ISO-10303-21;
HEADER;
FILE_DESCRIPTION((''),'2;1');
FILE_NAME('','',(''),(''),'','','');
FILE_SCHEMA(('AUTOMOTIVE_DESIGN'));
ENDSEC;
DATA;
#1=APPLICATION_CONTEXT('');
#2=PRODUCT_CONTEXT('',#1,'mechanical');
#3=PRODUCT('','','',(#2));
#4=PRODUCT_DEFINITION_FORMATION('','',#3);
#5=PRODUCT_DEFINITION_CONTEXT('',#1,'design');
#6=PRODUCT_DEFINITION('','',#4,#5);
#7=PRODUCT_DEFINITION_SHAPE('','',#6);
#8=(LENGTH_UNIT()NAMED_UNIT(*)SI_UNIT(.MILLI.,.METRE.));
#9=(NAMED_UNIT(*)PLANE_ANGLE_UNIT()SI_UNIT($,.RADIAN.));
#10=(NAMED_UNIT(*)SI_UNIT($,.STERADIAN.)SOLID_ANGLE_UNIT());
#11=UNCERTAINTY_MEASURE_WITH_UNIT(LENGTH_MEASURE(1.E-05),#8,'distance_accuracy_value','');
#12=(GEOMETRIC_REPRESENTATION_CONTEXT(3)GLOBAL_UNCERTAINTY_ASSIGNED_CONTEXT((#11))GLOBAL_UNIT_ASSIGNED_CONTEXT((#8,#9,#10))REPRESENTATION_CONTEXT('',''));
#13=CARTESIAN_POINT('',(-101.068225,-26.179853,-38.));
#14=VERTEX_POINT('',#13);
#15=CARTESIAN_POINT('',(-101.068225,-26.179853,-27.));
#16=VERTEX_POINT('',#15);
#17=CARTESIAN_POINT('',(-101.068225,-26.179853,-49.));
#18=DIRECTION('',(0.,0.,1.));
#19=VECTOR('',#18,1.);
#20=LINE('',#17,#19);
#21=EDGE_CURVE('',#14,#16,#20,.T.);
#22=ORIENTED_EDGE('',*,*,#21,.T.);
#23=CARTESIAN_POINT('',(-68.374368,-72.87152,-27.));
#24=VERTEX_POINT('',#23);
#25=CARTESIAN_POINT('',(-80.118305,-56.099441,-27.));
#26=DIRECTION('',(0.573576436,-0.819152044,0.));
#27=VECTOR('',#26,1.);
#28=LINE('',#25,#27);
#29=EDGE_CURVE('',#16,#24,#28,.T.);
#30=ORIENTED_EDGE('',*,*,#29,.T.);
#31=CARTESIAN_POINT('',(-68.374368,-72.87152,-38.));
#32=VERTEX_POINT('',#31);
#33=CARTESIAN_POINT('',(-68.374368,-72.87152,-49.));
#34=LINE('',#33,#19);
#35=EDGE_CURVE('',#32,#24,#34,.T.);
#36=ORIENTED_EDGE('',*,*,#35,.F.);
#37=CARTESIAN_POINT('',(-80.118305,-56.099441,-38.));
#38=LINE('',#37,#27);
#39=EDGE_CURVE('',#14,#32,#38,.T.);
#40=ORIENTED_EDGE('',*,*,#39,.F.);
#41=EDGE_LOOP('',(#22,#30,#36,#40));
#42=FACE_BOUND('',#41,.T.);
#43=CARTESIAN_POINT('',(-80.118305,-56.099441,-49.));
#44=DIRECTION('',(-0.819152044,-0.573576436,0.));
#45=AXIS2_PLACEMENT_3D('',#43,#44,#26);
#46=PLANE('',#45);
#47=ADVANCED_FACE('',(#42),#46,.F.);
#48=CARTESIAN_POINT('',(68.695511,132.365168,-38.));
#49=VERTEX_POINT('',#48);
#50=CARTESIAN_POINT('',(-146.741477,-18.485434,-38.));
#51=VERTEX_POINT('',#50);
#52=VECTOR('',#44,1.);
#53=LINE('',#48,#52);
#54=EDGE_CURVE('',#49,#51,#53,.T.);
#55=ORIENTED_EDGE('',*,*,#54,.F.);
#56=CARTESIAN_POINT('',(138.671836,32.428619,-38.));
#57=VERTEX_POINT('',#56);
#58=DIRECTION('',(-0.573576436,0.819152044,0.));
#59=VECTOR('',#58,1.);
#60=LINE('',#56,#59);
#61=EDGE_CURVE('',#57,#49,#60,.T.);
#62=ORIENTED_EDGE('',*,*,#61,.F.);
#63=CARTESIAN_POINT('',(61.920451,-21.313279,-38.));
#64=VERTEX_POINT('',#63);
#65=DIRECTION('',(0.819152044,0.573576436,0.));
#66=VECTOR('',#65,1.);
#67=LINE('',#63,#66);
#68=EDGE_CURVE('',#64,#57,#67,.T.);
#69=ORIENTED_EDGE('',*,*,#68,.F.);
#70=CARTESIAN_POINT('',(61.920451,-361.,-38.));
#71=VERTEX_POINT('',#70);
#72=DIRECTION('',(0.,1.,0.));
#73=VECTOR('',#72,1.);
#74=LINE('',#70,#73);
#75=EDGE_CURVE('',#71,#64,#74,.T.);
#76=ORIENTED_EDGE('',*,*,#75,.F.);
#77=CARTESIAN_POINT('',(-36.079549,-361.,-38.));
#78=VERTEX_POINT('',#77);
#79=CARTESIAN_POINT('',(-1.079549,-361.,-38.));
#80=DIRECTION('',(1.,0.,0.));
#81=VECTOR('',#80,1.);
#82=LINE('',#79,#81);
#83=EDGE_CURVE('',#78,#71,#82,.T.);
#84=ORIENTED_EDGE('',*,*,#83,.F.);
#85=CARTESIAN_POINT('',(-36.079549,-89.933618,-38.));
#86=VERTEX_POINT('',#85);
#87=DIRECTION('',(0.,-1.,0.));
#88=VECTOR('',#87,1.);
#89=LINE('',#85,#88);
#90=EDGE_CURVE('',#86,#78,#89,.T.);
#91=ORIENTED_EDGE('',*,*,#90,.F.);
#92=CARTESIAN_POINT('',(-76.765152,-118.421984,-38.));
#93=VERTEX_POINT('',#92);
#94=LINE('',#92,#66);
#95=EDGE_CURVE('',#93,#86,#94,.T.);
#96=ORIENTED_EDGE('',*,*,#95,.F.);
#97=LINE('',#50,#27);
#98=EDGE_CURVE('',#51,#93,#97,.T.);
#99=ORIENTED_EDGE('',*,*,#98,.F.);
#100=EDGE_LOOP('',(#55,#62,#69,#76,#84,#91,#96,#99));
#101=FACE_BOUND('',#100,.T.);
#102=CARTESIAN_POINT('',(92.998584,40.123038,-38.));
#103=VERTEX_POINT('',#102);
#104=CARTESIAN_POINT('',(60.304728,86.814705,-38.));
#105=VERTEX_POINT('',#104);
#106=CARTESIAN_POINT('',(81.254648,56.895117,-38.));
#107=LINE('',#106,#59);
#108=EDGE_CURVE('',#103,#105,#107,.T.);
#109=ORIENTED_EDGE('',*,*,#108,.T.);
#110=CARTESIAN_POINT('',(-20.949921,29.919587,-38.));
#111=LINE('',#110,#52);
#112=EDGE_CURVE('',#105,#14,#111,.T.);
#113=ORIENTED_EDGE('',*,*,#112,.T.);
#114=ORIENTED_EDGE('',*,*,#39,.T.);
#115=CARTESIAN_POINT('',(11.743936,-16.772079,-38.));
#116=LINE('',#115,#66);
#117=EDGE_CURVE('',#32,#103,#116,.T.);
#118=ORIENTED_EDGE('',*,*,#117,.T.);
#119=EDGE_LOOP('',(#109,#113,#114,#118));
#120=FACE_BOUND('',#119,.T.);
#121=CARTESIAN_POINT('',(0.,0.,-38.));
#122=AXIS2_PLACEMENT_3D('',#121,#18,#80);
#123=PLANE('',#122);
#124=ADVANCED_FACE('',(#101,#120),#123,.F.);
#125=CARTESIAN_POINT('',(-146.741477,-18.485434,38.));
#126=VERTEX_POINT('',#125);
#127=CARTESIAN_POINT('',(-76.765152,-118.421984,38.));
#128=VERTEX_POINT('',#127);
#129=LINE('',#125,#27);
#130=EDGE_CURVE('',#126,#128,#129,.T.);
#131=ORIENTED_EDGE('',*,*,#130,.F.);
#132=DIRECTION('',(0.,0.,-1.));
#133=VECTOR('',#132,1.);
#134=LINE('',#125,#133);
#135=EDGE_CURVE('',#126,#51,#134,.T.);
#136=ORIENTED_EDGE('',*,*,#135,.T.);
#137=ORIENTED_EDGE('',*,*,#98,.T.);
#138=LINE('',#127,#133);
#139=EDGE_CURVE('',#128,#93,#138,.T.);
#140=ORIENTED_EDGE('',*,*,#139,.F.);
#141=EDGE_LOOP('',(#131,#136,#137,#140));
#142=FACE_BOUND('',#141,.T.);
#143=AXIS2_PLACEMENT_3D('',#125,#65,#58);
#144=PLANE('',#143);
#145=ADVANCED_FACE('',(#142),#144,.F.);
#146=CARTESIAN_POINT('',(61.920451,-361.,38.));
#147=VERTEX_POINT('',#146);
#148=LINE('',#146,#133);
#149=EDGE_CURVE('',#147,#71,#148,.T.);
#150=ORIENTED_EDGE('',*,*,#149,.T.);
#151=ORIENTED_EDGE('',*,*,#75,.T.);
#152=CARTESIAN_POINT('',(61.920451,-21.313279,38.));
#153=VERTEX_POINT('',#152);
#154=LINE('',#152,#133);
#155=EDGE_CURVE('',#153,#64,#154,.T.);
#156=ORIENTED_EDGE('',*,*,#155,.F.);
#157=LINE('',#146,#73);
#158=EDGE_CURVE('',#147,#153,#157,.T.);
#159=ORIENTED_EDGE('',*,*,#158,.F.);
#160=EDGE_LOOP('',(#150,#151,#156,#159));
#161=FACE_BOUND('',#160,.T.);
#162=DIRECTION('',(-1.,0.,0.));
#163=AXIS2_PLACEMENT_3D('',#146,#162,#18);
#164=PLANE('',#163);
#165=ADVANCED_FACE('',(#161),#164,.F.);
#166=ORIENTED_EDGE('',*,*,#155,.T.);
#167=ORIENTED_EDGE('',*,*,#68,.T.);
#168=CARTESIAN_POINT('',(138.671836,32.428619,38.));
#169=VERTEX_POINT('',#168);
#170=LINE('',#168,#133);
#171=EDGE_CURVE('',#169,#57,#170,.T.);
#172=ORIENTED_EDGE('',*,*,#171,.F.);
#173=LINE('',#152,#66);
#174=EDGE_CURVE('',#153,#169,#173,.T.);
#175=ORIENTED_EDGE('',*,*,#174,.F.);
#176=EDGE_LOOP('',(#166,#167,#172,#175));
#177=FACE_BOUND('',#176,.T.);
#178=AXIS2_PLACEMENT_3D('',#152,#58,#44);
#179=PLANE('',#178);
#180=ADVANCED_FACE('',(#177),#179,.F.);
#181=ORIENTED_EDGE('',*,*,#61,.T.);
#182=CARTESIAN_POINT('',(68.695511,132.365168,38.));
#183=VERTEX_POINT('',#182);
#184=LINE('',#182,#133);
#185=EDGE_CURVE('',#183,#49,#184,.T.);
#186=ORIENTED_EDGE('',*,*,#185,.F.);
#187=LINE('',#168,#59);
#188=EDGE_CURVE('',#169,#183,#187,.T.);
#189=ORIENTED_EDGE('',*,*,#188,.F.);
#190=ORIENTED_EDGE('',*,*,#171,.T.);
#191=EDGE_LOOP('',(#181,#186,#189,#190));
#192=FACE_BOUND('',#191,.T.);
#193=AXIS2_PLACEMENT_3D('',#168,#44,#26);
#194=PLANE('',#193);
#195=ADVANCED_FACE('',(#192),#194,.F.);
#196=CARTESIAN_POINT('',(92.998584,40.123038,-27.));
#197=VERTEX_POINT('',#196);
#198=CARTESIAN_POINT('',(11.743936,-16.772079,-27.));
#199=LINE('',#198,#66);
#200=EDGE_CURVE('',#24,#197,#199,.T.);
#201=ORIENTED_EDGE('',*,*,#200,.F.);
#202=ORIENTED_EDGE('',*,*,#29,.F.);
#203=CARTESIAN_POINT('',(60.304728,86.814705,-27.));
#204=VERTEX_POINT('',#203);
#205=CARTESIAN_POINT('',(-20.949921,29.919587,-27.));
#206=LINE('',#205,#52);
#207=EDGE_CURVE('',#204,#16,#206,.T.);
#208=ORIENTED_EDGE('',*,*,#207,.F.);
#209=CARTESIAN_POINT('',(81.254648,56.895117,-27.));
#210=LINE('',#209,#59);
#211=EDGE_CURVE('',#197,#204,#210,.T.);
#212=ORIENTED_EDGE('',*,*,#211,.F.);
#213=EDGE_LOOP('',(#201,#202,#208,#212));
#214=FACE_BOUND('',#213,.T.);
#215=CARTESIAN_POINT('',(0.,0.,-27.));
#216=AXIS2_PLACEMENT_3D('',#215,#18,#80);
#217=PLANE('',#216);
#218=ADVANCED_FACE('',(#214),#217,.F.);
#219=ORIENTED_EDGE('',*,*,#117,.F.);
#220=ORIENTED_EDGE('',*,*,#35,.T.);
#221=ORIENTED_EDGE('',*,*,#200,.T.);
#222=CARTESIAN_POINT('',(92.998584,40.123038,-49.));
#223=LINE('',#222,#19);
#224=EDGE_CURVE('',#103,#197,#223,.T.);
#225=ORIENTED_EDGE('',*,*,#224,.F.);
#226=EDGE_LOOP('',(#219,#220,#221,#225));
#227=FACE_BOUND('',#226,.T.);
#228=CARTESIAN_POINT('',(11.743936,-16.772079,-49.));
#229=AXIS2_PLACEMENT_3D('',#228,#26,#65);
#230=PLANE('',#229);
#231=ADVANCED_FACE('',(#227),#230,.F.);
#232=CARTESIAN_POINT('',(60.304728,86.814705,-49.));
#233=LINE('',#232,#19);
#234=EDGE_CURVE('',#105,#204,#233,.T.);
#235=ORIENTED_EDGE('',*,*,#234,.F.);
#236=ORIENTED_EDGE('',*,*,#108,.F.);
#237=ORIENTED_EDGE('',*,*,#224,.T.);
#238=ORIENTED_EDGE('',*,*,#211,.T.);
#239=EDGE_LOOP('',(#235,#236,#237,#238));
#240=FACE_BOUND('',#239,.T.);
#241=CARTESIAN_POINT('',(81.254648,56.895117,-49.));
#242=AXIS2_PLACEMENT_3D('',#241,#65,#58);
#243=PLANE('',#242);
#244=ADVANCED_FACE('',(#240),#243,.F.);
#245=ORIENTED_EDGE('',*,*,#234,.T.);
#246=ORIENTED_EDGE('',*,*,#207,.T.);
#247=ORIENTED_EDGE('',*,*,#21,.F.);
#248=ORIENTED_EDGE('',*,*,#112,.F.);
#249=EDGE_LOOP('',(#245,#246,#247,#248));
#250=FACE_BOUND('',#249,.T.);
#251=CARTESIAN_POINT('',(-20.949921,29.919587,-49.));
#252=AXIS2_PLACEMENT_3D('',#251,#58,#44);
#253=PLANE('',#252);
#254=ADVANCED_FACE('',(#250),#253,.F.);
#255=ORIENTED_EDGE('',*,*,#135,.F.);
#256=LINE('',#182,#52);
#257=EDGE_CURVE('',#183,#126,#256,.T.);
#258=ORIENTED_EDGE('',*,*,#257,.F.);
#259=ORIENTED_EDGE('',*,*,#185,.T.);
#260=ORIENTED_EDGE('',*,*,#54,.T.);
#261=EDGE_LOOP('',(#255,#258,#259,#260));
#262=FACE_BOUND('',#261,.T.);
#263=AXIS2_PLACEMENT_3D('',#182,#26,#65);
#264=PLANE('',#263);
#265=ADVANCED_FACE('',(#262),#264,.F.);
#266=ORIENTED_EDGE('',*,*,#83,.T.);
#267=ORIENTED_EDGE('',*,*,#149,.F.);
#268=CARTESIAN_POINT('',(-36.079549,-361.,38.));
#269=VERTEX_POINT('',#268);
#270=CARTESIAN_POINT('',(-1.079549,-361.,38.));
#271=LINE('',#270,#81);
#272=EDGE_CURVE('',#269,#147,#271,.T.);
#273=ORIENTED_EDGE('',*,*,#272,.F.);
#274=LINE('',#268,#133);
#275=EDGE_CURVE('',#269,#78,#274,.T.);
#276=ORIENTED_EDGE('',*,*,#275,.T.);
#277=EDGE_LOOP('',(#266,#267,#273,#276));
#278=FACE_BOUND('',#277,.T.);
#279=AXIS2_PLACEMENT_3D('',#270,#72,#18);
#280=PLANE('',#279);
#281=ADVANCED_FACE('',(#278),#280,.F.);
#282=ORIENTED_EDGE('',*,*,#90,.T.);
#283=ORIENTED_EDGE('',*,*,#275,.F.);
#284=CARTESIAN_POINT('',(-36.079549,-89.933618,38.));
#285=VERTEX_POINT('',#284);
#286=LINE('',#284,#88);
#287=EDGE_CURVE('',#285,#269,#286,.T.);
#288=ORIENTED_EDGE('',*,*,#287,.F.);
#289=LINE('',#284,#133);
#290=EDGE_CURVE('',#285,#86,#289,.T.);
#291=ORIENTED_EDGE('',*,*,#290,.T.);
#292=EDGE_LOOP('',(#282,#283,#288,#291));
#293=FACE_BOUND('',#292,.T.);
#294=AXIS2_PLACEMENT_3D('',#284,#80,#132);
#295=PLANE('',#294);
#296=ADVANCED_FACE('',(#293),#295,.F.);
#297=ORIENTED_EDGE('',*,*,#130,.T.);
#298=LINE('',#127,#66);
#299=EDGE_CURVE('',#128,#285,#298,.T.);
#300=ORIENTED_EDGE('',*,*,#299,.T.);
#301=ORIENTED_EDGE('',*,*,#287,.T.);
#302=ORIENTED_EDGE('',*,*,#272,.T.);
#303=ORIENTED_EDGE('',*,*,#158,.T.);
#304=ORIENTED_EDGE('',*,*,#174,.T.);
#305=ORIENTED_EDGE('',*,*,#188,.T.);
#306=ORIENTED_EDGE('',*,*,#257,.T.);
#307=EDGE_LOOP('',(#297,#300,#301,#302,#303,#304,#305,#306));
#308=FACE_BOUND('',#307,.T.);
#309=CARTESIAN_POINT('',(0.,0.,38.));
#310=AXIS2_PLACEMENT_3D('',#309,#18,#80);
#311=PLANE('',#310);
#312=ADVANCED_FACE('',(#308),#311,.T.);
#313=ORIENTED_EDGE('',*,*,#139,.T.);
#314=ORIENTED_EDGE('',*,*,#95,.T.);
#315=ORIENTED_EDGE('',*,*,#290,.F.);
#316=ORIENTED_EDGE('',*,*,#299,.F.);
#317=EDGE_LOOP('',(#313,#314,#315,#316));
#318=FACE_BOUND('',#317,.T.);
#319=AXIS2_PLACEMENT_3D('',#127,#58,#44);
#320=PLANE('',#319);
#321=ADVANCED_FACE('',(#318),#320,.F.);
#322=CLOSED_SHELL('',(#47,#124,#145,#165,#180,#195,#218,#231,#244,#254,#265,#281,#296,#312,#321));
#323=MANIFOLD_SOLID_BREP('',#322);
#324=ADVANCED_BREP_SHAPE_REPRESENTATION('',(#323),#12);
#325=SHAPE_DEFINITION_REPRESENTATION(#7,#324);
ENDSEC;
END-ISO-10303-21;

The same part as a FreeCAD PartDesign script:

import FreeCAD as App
import Part
import Sketcher
from FreeCAD import Vector
Q = App.Units.Quantity

doc = App.newDocument("Part")
body = doc.addObject("PartDesign::Body", "Body")

sketch1 = body.newObject("Sketcher::SketchObject", "Sketch")
sketch1.AttachmentSupport = (doc.getObject("XY_Plane"), [""])
sketch1.MapMode = "FlatFace"
sketch1.addGeometry(Part.LineSegment(Vector(61.920451, -361, 0), Vector(61.920451, -21.313279, 0)), False)
sketch1.addGeometry(Part.LineSegment(Vector(61.920451, -21.313279, 0), Vector(138.671836, 32.428619, 0)), False)
sketch1.addGeometry(Part.LineSegment(Vector(138.671836, 32.428619, 0), Vector(68.695511, 132.365168, 0)), False)
sketch1.addGeometry(Part.LineSegment(Vector(68.695511, 132.365168, 0), Vector(-146.741477, -18.485434, 0)), False)
sketch1.addGeometry(Part.LineSegment(Vector(-146.741477, -18.485434, 0), Vector(-76.765152, -118.421984, 0)), False)
sketch1.addGeometry(Part.LineSegment(Vector(-76.765152, -118.421984, 0), Vector(-36.079549, -89.933618, 0)), False)
sketch1.addGeometry(Part.LineSegment(Vector(-36.079549, -89.933618, 0), Vector(-36.079549, -361, 0)), False)
sketch1.addGeometry(Part.LineSegment(Vector(-36.079549, -361, 0), Vector(61.920451, -361, 0)), False)
sketch1.addConstraint(Sketcher.Constraint("Coincident", 0, 2, 1, 1))
sketch1.addConstraint(Sketcher.Constraint("Coincident", 1, 2, 2, 1))
sketch1.addConstraint(Sketcher.Constraint("Coincident", 2, 2, 3, 1))
sketch1.addConstraint(Sketcher.Constraint("Coincident", 3, 2, 4, 1))
sketch1.addConstraint(Sketcher.Constraint("Coincident", 4, 2, 5, 1))
sketch1.addConstraint(Sketcher.Constraint("Coincident", 5, 2, 6, 1))
sketch1.addConstraint(Sketcher.Constraint("Coincident", 6, 2, 7, 1))
sketch1.addConstraint(Sketcher.Constraint("Coincident", 7, 2, 0, 1))
sketch1.addConstraint(Sketcher.Constraint("Vertical", 0))
sketch1.addConstraint(Sketcher.Constraint("Vertical", 6))
sketch1.addConstraint(Sketcher.Constraint("Horizontal", 7))
sketch1.addConstraint(Sketcher.Constraint("Perpendicular", 1, 2))
sketch1.addConstraint(Sketcher.Constraint("Perpendicular", 2, 3))
sketch1.addConstraint(Sketcher.Constraint("Perpendicular", 3, 4))
sketch1.addConstraint(Sketcher.Constraint("Perpendicular", 4, 5))
sketch1.addConstraint(Sketcher.Constraint("Equal", 2, 4))
sketch1.addConstraint(Sketcher.Constraint("DistanceX", 7, 1, 7, 2, Q("98 mm")))
sketch1.addConstraint(Sketcher.Constraint("Angle", 1, Q("35 deg")))
sketch1.addConstraint(Sketcher.Constraint("Distance", 2, Q("122 mm")))
sketch1.addConstraint(Sketcher.Constraint("Distance", 3, Q("263 mm")))
sketch1.addConstraint(Sketcher.Constraint("DistanceY", 6, 2, -1, 1, Q("361 mm")))
sketch1.addConstraint(Sketcher.Constraint("DistanceY", 0, 1, 0, 2, Q("339.686721 mm")))
sketch1.addConstraint(Sketcher.Constraint("DistanceY", 0, 2, 1, 2, Q("53.741898 mm")))
sketch1.addConstraint(Sketcher.Constraint("DistanceX", -1, 1, 0, 2, Q("61.920451 mm")))
pad1 = body.newObject("PartDesign::Pad", "Pad")
pad1.Profile = sketch1
pad1.Length = 76
pad1.Midplane = True

sketch2 = body.newObject("Sketcher::SketchObject", "Sketch001")
sketch2.AttachmentSupport = (doc.getObject("XY_Plane"), [""])
sketch2.MapMode = "FlatFace"
sketch2.AttachmentOffset = App.Placement(Vector(0, 0, -38), App.Rotation())
sketch2.addGeometry(Part.LineSegment(Vector(-101.068225, -26.179853, 0), Vector(-68.374368, -72.87152, 0)), False)
sketch2.addGeometry(Part.LineSegment(Vector(-68.374368, -72.87152, 0), Vector(92.998584, 40.123038, 0)), False)
sketch2.addGeometry(Part.LineSegment(Vector(92.998584, 40.123038, 0), Vector(60.304728, 86.814705, 0)), False)
sketch2.addGeometry(Part.LineSegment(Vector(60.304728, 86.814705, 0), Vector(-101.068225, -26.179853, 0)), False)
sketch2.addConstraint(Sketcher.Constraint("Coincident", 0, 2, 1, 1))
sketch2.addConstraint(Sketcher.Constraint("Coincident", 1, 2, 2, 1))
sketch2.addConstraint(Sketcher.Constraint("Coincident", 2, 2, 3, 1))
sketch2.addConstraint(Sketcher.Constraint("Coincident", 3, 2, 0, 1))
sketch2.addConstraint(Sketcher.Constraint("Perpendicular", 0, 1))
sketch2.addConstraint(Sketcher.Constraint("Perpendicular", 1, 2))
sketch2.addConstraint(Sketcher.Constraint("Perpendicular", 2, 3))
sketch2.addConstraint(Sketcher.Constraint("Angle", 0, Q("-55 deg")))
sketch2.addConstraint(Sketcher.Constraint("Distance", 0, Q("57 mm")))
sketch2.addConstraint(Sketcher.Constraint("Distance", 1, Q("197 mm")))
sketch2.addConstraint(Sketcher.Constraint("DistanceX", 0, 2, -1, 1, Q("68.374368 mm")))
sketch2.addConstraint(Sketcher.Constraint("DistanceY", 0, 2, -1, 1, Q("72.87152 mm")))
pocket1 = body.newObject("PartDesign::Pocket", "Pocket")
pocket1.Profile = sketch2
pocket1.Length = 22
pocket1.Midplane = True

doc.recompute()
